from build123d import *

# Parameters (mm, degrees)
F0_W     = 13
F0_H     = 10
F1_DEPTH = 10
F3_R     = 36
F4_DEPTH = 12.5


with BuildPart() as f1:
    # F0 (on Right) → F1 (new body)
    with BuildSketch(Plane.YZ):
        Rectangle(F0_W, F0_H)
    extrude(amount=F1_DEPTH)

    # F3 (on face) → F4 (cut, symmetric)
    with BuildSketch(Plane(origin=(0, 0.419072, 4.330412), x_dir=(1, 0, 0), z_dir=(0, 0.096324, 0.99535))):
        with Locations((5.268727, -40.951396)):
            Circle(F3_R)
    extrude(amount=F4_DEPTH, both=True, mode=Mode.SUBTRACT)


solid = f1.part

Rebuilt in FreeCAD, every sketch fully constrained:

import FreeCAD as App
import Part
import Sketcher

V = App.Vector

doc = App.newDocument("Part")
params = doc.addObject("Spreadsheet::Sheet", "Params")
for row, (alias, value) in enumerate([
    ("sketch1_width", "13 mm"),
    ("sketch1_height", "10 mm"),
    ("pad1_length", "10 mm"),
    ("sketch2_diameter", "72 mm"),
    ("pocket1_length", "25 mm"),
], start=1):
    params.set(f"A{row}", alias)
    params.set(f"B{row}", "=" + value)
    params.setAlias(f"B{row}", alias)

body = doc.addObject("PartDesign::Body", "Body")

# Sketch on YZ plane
sketch1 = body.newObject("Sketcher::SketchObject", "Sketch")
sketch1.AttachmentSupport = (doc.getObject("YZ_Plane"), [""])
sketch1.MapMode = "FlatFace"
sketch1.addGeometry([
    Part.LineSegment(V(-6, 5, 0), V(-6, -5, 0)),
    Part.LineSegment(V(-6, -5, 0), V(6, -5, 0)),
    Part.LineSegment(V(6, -5, 0), V(6, 5, 0)),
    Part.LineSegment(V(6, 5, 0), V(-6, 5, 0)),
], False)
sketch1.addConstraint([
    Sketcher.Constraint("Coincident", 0, 2, 1, 1),
    Sketcher.Constraint("Coincident", 1, 2, 2, 1),
    Sketcher.Constraint("Coincident", 2, 2, 3, 1),
    Sketcher.Constraint("Coincident", 3, 2, 0, 1),
    Sketcher.Constraint("Vertical", 0),
    Sketcher.Constraint("Horizontal", 1),
    Sketcher.Constraint("Vertical", 2),
    Sketcher.Constraint("Horizontal", 3),
    Sketcher.Constraint("Symmetric", 0, 2, 2, 2, -1, 1),
    Sketcher.Constraint("DistanceX", 1, 1, 1, 2, 13.0),
    Sketcher.Constraint("DistanceY", 0, 2, 0, 1, 10.0),
])
sketch1.setExpression("Constraints[9]", "Params.sketch1_width")
sketch1.setExpression("Constraints[10]", "Params.sketch1_height")
pad1 = body.newObject("PartDesign::Pad", "Pad")
pad1.Profile = sketch1
pad1.setExpression("Length", "Params.pad1_length")

# Sketch on an angled plane
sketch2 = body.newObject("Sketcher::SketchObject", "Sketch001")
sketch2.Placement = App.Placement(V(0, 0.419072, 4.330412), App.Rotation(V(1, 0, 0), V(0, 0.995350032, -0.096324003), V(0, 0.096324003, 0.995350032), "ZXY"))
sketch2.addGeometry(Part.Circle(V(5, -41, 0), V(0, 0, 1), 36), False)
sketch2.addConstraint([
    Sketcher.Constraint("Diameter", 0, 72.0),
    Sketcher.Constraint("DistanceX", -1, 1, 0, 3, 5.268727),
    Sketcher.Constraint("DistanceY", 0, 3, -1, 1, 40.951396),
])
sketch2.setExpression("Constraints[0]", "Params.sketch2_diameter")
pocket1 = body.newObject("PartDesign::Pocket", "Pocket")
pocket1.Profile = sketch2
pocket1.setExpression("Length", "Params.pocket1_length")
pocket1.Midplane = True

doc.recompute()
